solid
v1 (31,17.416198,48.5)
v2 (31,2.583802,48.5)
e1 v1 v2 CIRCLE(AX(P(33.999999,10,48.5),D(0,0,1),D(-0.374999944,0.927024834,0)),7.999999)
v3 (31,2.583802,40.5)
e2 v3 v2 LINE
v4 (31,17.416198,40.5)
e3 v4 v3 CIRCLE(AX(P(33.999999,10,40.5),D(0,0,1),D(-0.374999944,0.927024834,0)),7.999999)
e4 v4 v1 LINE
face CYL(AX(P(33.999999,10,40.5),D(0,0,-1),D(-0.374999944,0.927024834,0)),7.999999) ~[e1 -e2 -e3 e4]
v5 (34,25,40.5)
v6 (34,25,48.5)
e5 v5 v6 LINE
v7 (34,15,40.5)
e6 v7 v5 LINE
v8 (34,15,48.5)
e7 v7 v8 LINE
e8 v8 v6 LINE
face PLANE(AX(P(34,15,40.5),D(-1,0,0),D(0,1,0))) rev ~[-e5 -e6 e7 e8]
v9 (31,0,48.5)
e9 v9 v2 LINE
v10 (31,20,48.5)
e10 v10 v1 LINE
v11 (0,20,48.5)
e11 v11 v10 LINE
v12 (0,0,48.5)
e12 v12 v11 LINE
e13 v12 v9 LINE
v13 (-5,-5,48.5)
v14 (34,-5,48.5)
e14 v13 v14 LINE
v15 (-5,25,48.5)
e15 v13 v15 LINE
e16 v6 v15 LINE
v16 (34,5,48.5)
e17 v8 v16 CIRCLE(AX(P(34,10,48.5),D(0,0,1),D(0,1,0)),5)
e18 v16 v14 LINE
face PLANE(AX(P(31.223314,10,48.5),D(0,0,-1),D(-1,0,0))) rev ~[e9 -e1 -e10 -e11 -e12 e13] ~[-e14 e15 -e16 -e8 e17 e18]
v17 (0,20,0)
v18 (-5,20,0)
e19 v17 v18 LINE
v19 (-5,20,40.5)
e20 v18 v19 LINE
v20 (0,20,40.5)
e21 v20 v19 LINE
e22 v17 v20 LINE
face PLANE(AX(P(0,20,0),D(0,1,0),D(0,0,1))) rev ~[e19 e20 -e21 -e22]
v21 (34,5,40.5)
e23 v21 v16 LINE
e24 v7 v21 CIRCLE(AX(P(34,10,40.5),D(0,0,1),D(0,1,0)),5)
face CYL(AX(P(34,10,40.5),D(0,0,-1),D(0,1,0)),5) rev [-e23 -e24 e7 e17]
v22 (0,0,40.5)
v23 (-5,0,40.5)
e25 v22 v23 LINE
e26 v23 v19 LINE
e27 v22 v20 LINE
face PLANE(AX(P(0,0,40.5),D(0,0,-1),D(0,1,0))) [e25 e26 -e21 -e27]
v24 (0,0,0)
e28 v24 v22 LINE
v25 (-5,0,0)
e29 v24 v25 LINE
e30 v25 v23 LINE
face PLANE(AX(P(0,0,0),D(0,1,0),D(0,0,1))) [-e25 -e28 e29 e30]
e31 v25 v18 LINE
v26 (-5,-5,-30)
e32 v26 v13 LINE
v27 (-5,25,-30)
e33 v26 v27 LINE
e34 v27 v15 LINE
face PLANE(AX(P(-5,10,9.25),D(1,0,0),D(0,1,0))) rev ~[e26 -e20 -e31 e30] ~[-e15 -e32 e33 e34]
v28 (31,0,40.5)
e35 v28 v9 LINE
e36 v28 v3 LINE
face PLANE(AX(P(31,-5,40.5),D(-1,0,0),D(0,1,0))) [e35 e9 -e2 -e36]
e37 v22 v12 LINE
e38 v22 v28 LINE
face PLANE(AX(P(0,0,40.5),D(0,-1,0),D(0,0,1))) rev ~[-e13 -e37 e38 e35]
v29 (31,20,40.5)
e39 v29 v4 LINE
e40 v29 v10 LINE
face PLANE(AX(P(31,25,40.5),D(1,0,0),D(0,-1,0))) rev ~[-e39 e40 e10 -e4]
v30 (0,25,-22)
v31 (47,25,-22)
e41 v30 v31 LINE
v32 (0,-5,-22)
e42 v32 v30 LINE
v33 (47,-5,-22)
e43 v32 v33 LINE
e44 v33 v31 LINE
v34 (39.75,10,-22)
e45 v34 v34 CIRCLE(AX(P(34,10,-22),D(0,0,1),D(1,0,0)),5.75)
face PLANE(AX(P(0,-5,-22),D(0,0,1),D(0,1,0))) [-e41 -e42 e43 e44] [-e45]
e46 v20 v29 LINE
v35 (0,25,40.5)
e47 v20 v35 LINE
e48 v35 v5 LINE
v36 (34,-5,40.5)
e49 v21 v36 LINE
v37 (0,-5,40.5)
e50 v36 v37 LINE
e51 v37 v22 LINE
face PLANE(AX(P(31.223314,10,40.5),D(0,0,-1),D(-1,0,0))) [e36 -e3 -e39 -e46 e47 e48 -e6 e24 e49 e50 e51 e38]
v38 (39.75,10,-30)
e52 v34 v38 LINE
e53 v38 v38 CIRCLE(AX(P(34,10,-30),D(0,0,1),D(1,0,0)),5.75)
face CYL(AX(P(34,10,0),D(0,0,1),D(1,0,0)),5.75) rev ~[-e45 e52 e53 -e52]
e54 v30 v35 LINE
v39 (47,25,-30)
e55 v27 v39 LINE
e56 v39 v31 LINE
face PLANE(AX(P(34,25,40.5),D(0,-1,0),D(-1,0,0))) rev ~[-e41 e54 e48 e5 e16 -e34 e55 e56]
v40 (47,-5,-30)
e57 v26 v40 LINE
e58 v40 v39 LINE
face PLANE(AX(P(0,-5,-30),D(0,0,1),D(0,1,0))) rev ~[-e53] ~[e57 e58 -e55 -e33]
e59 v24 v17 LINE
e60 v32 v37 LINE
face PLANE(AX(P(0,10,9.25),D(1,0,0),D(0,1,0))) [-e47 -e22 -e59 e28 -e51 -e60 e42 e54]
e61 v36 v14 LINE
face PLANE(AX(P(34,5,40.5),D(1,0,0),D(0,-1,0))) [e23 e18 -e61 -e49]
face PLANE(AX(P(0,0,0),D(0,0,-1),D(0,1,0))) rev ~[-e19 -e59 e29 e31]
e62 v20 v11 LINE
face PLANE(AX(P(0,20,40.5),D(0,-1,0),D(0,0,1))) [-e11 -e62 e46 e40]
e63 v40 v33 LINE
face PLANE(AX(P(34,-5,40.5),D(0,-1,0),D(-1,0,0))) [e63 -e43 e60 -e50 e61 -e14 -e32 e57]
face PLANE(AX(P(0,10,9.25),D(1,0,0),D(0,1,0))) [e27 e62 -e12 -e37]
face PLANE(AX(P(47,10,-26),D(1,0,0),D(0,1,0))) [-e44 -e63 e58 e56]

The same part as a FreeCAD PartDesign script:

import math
import FreeCAD as App
import Part
import Sketcher
from FreeCAD import Vector
Q = App.Units.Quantity

doc = App.newDocument("Part")
params = doc.addObject("Spreadsheet::Sheet", "Params")
for row, (alias, value) in enumerate([
    ("sketch1_width", "30 mm"),
    ("sketch1_width2", "20 mm"),
    ("sketch1_height", "78.5 mm"),
    ("sketch1_height2", "40.5 mm"),
    ("pad1_length", "5 mm"),
    ("sketch2_width", "30 mm"),
    ("sketch2_height", "8 mm"),
    ("pad2_length", "47 mm"),
    ("sketch3_width", "5 mm"),
    ("sketch3_height", "8 mm"),
    ("pad3_length", "31 mm"),
    ("sketch4_radius", "5 mm"),
    ("sketch4_radius2", "7.999999 mm"),
    ("sketch4_width", "3 mm"),
    ("sketch4_height", "10 mm"),
    ("pad4_length", "8 mm"),
    ("sketch5_diameter", "3 mm"),
    ("sketch6_diameter", "11.5 mm"),
], start=1):
    params.set(f"A{row}", alias)
    params.set(f"B{row}", "=" + value)
    params.setAlias(f"B{row}", alias)

body = doc.addObject("PartDesign::Body", "Body")

# Sketch on YZ plane
sketch1 = body.newObject("Sketcher::SketchObject", "Sketch")
sketch1.AttachmentSupport = (doc.getObject("YZ_Plane"), [""])
sketch1.MapMode = "FlatFace"
sketch1.addGeometry([
    Part.LineSegment(Vector(-5, 48.5, 0), Vector(-5, -30, 0)),  # 0
    Part.LineSegment(Vector(-5, -30, 0), Vector(25, -30, 0)),  # 1
    Part.LineSegment(Vector(25, -30, 0), Vector(25, 48.5, 0)),  # 2
    Part.LineSegment(Vector(25, 48.5, 0), Vector(-5, 48.5, 0)),  # 3
    Part.LineSegment(Vector(20, 0, 0), Vector(0, 0, 0)),  # 4
    Part.LineSegment(Vector(0, 0, 0), Vector(0, 40.5, 0)),  # 5
    Part.LineSegment(Vector(0, 40.5, 0), Vector(20, 40.5, 0)),  # 6
    Part.LineSegment(Vector(20, 40.5, 0), Vector(20, 0, 0)),  # 7
], False)
sketch1.addConstraint([
    Sketcher.Constraint("Coincident", 0, 2, 1, 1),
    Sketcher.Constraint("Coincident", 1, 2, 2, 1),
    Sketcher.Constraint("Coincident", 2, 2, 3, 1),
    Sketcher.Constraint("Coincident", 3, 2, 0, 1),
    Sketcher.Constraint("Coincident", 4, 2, 5, 1),
    Sketcher.Constraint("Coincident", 5, 2, 6, 1),
    Sketcher.Constraint("Coincident", 6, 2, 7, 1),
    Sketcher.Constraint("Coincident", 7, 2, 4, 1),
    Sketcher.Constraint("Vertical", 0),
    Sketcher.Constraint("Horizontal", 1),
    Sketcher.Constraint("Vertical", 2),
    Sketcher.Constraint("Horizontal", 3),
    Sketcher.Constraint("Horizontal", 4),
    Sketcher.Constraint("Vertical", 5),
    Sketcher.Constraint("Horizontal", 6),
    Sketcher.Constraint("Vertical", 7),
    Sketcher.Constraint("Coincident", 4, 2, -1, 1),
    Sketcher.Constraint("DistanceX", 1, 1, 1, 2, Q("30 mm")),
    Sketcher.Constraint("DistanceX", 4, 2, 4, 1, Q("20 mm")),
    Sketcher.Constraint("DistanceY", 0, 2, 0, 1, Q("78.5 mm")),
    Sketcher.Constraint("DistanceY", 5, 1, 5, 2, Q("40.5 mm")),
    Sketcher.Constraint("DistanceX", 0, 2, -1, 1, Q("5 mm")),
    Sketcher.Constraint("DistanceY", 0, 2, -1, 1, Q("30 mm")),
])
sketch1.setExpression("Constraints[17]", "Params.sketch1_width")
sketch1.setExpression("Constraints[18]", "Params.sketch1_width2")
sketch1.setExpression("Constraints[19]", "Params.sketch1_height")
sketch1.setExpression("Constraints[20]", "Params.sketch1_height2")
pad1 = body.newObject("PartDesign::Pad", "Pad")
pad1.Profile = sketch1
pad1.setExpression("Length", "Params.pad1_length")
pad1.Reversed = True

# Sketch on YZ plane
sketch2 = body.newObject("Sketcher::SketchObject", "Sketch001")
sketch2.AttachmentSupport = (doc.getObject("YZ_Plane"), [""])
sketch2.MapMode = "FlatFace"
sketch2.addGeometry([
    Part.LineSegment(Vector(-5, -22, 0), Vector(-5, -30, 0)),
    Part.LineSegment(Vector(-5, -30, 0), Vector(25, -30, 0)),
    Part.LineSegment(Vector(25, -30, 0), Vector(25, -22, 0)),
    Part.LineSegment(Vector(25, -22, 0), Vector(-5, -22, 0)),
], False)
sketch2.addConstraint([
    Sketcher.Constraint("Coincident", 0, 2, 1, 1),
    Sketcher.Constraint("Coincident", 1, 2, 2, 1),
    Sketcher.Constraint("Coincident", 2, 2, 3, 1),
    Sketcher.Constraint("Coincident", 3, 2, 0, 1),
    Sketcher.Constraint("Vertical", 0),
    Sketcher.Constraint("Horizontal", 1),
    Sketcher.Constraint("Vertical", 2),
    Sketcher.Constraint("Horizontal", 3),
    Sketcher.Constraint("DistanceX", 1, 1, 1, 2, Q("30 mm")),
    Sketcher.Constraint("DistanceY", 0, 2, 0, 1, Q("8 mm")),
    Sketcher.Constraint("DistanceX", 0, 2, -1, 1, Q("5 mm")),
    Sketcher.Constraint("DistanceY", 0, 2, -1, 1, Q("30 mm")),
])
sketch2.setExpression("Constraints[8]", "Params.sketch2_width")
sketch2.setExpression("Constraints[9]", "Params.sketch2_height")
pad2 = body.newObject("PartDesign::Pad", "Pad001")
pad2.Profile = sketch2
pad2.setExpression("Length", "Params.pad2_length")

# Sketch on YZ plane
sketch3 = body.newObject("Sketcher::SketchObject", "Sketch002")
sketch3.AttachmentSupport = (doc.getObject("YZ_Plane"), [""])
sketch3.MapMode = "FlatFace"
sketch3.addGeometry([
    Part.LineSegment(Vector(-5, 48.5, 0), Vector(-5, 40.5, 0)),  # 0
    Part.LineSegment(Vector(-5, 40.5, 0), Vector(0, 40.5, 0)),  # 1
    Part.LineSegment(Vector(0, 40.5, 0), Vector(0, 48.5, 0)),  # 2
    Part.LineSegment(Vector(0, 48.5, 0), Vector(-5, 48.5, 0)),  # 3
    Part.LineSegment(Vector(20, 48.5, 0), Vector(20, 40.5, 0)),  # 4
    Part.LineSegment(Vector(20, 40.5, 0), Vector(25, 40.5, 0)),  # 5
    Part.LineSegment(Vector(25, 40.5, 0), Vector(25, 48.5, 0)),  # 6
    Part.LineSegment(Vector(25, 48.5, 0), Vector(20, 48.5, 0)),  # 7
], False)
sketch3.addConstraint([
    Sketcher.Constraint("Coincident", 0, 2, 1, 1),
    Sketcher.Constraint("Coincident", 1, 2, 2, 1),
    Sketcher.Constraint("Coincident", 2, 2, 3, 1),
    Sketcher.Constraint("Coincident", 3, 2, 0, 1),
    Sketcher.Constraint("Coincident", 4, 2, 5, 1),
    Sketcher.Constraint("Coincident", 5, 2, 6, 1),
    Sketcher.Constraint("Coincident", 6, 2, 7, 1),
    Sketcher.Constraint("Coincident", 7, 2, 4, 1),
    Sketcher.Constraint("Vertical", 0),
    Sketcher.Constraint("Horizontal", 1),
    Sketcher.Constraint("Vertical", 2),
    Sketcher.Constraint("Horizontal", 3),
    Sketcher.Constraint("Vertical", 4),
    Sketcher.Constraint("Horizontal", 5),
    Sketcher.Constraint("Vertical", 6),
    Sketcher.Constraint("Horizontal", 7),
    Sketcher.Constraint("PointOnObject", 1, 2, -2),
    Sketcher.Constraint("Horizontal", 1, 2, 4, 2),
    Sketcher.Constraint("Horizontal", 3, 2, 6, 2),
    Sketcher.Constraint("Equal", 3, 5),
    Sketcher.Constraint("DistanceX", 1, 1, 1, 2, Q("5 mm")),
    Sketcher.Constraint("DistanceY", 0, 2, 0, 1, Q("8 mm")),
    Sketcher.Constraint("DistanceX", -1, 1, 4, 2, Q("20 mm")),
    Sketcher.Constraint("DistanceY", -1, 1, 0, 2, Q("40.5 mm")),
])
sketch3.setExpression("Constraints[20]", "Params.sketch3_width")
sketch3.setExpression("Constraints[21]", "Params.sketch3_height")
pad3 = body.newObject("PartDesign::Pad", "Pad002")
pad3.Profile = sketch3
pad3.setExpression("Length", "Params.pad3_length")

# Sketch on XY plane
sketch4 = body.newObject("Sketcher::SketchObject", "Sketch003")
sketch4.AttachmentSupport = (doc.getObject("XY_Plane"), [""])
sketch4.MapMode = "FlatFace"
sketch4.AttachmentOffset = App.Placement(Vector(0, 0, 40.5), App.Rotation())
sketch4.addGeometry([
    Part.ArcOfCircle(Part.Circle(Vector(34, 10, 0), Vector(0, 0, 1), 5), math.radians(90), math.radians(270)),  # 0
    Part.LineSegment(Vector(34, 15, 0), Vector(34, 25, 0)),  # 1
    Part.LineSegment(Vector(34, 25, 0), Vector(31, 25, 0)),  # 2
    Part.LineSegment(Vector(31, 25, 0), Vector(31, 17.416198, 0)),  # 3
    Part.ArcOfCircle(Part.Circle(Vector(33.999999, 10, 0), Vector(0, 0, 1), 7.999999), math.radians(112.024309), math.radians(247.975691)),  # 4
    Part.LineSegment(Vector(31, 2.583802, 0), Vector(31, -5, 0)),  # 5
    Part.LineSegment(Vector(31, -5, 0), Vector(34, -5, 0)),  # 6
    Part.LineSegment(Vector(34, -5, 0), Vector(34, 5, 0)),  # 7
], False)
sketch4.addConstraint([
    Sketcher.Constraint("Coincident", 0, 1, 1, 1),
    Sketcher.Constraint("Coincident", 1, 2, 2, 1),
    Sketcher.Constraint("Coincident", 2, 2, 3, 1),
    Sketcher.Constraint("Coincident", 3, 2, 4, 1),
    Sketcher.Constraint("Coincident", 4, 2, 5, 1),
    Sketcher.Constraint("Coincident", 5, 2, 6, 1),
    Sketcher.Constraint("Coincident", 6, 2, 7, 1),
    Sketcher.Constraint("Coincident", 7, 2, 0, 2),
    Sketcher.Constraint("Vertical", 1),
    Sketcher.Constraint("Horizontal", 2),
    Sketcher.Constraint("Vertical", 3),
    Sketcher.Constraint("Vertical", 5),
    Sketcher.Constraint("Horizontal", 6),
    Sketcher.Constraint("Vertical", 7),
    Sketcher.Constraint("Coincident", 4, 3, 0, 3),
    Sketcher.Constraint("Vertical", 4, 3, 0, 1),
    Sketcher.Constraint("Vertical", 3, 2, 4, 2),
    Sketcher.Constraint("Vertical", 1, 2, 6, 2),
    Sketcher.Constraint("Equal", 3, 5),
    Sketcher.Constraint("Radius", 0, Q("5 mm")),
    Sketcher.Constraint("Radius", 4, Q("7.999999 mm")),
    Sketcher.Constraint("DistanceX", 2, 2, 2, 1, Q("3 mm")),
    Sketcher.Constraint("DistanceY", 1, 1, 1, 2, Q("10 mm")),
    Sketcher.Constraint("DistanceX", -1, 1, 0, 3, Q("34 mm")),
    Sketcher.Constraint("DistanceY", -1, 1, 0, 3, Q("10 mm")),
])
sketch4.setExpression("Constraints[19]", "Params.sketch4_radius")
sketch4.setExpression("Constraints[20]", "Params.sketch4_radius2")
sketch4.setExpression("Constraints[21]", "Params.sketch4_width")
sketch4.setExpression("Constraints[22]", "Params.sketch4_height")
pad4 = body.newObject("PartDesign::Pad", "Pad003")
pad4.Profile = sketch4
pad4.setExpression("Length", "Params.pad4_length")

# Sketch on YZ plane
sketch5 = body.newObject("Sketcher::SketchObject", "Sketch004")
sketch5.AttachmentSupport = (doc.getObject("YZ_Plane"), [""])
sketch5.MapMode = "FlatFace"
sketch5.AttachmentOffset = App.Placement(Vector(0, 0, 40.5), App.Rotation())
sketch5.addGeometry([
    Part.Circle(Vector(-2.5, 44.5, 0), Vector(0, 0, 1), 1.5),
    Part.Circle(Vector(22.5, 44.5, 0), Vector(0, 0, 1), 1.5),
], False)
sketch5.addConstraint([
    Sketcher.Constraint("Equal", 0, 1),
    Sketcher.Constraint("Horizontal", 0, 3, 1, 3),
    Sketcher.Constraint("Diameter", 0, Q("3 mm")),
    Sketcher.Constraint("DistanceX", 0, 3, 1, 3, Q("25 mm")),
    Sketcher.Constraint("DistanceX", 0, 3, -1, 1, Q("2.5 mm")),
    Sketcher.Constraint("DistanceY", -1, 1, 0, 3, Q("44.5 mm")),
])
sketch5.setExpression("Constraints[2]", "Params.sketch5_diameter")
pocket1 = body.newObject("PartDesign::Pocket", "Pocket")
pocket1.Profile = sketch5
pocket1.Type = "ThroughAll"
pocket1.Reversed = True

# Sketch on XY plane
sketch6 = body.newObject("Sketcher::SketchObject", "Sketch005")
sketch6.AttachmentSupport = (doc.getObject("XY_Plane"), [""])
sketch6.MapMode = "FlatFace"
sketch6.addGeometry(Part.Circle(Vector(34, 10, 0), Vector(0, 0, 1), 5.75), False)
sketch6.addConstraint([
    Sketcher.Constraint("Diameter", 0, Q("11.5 mm")),
    Sketcher.Constraint("DistanceX", -1, 1, 0, 3, Q("34 mm")),
    Sketcher.Constraint("DistanceY", -1, 1, 0, 3, Q("10 mm")),
])
sketch6.setExpression("Constraints[0]", "Params.sketch6_diameter")
pocket2 = body.newObject("PartDesign::Pocket", "Pocket001")
pocket2.Profile = sketch6
pocket2.Type = "ThroughAll"

doc.recompute()
